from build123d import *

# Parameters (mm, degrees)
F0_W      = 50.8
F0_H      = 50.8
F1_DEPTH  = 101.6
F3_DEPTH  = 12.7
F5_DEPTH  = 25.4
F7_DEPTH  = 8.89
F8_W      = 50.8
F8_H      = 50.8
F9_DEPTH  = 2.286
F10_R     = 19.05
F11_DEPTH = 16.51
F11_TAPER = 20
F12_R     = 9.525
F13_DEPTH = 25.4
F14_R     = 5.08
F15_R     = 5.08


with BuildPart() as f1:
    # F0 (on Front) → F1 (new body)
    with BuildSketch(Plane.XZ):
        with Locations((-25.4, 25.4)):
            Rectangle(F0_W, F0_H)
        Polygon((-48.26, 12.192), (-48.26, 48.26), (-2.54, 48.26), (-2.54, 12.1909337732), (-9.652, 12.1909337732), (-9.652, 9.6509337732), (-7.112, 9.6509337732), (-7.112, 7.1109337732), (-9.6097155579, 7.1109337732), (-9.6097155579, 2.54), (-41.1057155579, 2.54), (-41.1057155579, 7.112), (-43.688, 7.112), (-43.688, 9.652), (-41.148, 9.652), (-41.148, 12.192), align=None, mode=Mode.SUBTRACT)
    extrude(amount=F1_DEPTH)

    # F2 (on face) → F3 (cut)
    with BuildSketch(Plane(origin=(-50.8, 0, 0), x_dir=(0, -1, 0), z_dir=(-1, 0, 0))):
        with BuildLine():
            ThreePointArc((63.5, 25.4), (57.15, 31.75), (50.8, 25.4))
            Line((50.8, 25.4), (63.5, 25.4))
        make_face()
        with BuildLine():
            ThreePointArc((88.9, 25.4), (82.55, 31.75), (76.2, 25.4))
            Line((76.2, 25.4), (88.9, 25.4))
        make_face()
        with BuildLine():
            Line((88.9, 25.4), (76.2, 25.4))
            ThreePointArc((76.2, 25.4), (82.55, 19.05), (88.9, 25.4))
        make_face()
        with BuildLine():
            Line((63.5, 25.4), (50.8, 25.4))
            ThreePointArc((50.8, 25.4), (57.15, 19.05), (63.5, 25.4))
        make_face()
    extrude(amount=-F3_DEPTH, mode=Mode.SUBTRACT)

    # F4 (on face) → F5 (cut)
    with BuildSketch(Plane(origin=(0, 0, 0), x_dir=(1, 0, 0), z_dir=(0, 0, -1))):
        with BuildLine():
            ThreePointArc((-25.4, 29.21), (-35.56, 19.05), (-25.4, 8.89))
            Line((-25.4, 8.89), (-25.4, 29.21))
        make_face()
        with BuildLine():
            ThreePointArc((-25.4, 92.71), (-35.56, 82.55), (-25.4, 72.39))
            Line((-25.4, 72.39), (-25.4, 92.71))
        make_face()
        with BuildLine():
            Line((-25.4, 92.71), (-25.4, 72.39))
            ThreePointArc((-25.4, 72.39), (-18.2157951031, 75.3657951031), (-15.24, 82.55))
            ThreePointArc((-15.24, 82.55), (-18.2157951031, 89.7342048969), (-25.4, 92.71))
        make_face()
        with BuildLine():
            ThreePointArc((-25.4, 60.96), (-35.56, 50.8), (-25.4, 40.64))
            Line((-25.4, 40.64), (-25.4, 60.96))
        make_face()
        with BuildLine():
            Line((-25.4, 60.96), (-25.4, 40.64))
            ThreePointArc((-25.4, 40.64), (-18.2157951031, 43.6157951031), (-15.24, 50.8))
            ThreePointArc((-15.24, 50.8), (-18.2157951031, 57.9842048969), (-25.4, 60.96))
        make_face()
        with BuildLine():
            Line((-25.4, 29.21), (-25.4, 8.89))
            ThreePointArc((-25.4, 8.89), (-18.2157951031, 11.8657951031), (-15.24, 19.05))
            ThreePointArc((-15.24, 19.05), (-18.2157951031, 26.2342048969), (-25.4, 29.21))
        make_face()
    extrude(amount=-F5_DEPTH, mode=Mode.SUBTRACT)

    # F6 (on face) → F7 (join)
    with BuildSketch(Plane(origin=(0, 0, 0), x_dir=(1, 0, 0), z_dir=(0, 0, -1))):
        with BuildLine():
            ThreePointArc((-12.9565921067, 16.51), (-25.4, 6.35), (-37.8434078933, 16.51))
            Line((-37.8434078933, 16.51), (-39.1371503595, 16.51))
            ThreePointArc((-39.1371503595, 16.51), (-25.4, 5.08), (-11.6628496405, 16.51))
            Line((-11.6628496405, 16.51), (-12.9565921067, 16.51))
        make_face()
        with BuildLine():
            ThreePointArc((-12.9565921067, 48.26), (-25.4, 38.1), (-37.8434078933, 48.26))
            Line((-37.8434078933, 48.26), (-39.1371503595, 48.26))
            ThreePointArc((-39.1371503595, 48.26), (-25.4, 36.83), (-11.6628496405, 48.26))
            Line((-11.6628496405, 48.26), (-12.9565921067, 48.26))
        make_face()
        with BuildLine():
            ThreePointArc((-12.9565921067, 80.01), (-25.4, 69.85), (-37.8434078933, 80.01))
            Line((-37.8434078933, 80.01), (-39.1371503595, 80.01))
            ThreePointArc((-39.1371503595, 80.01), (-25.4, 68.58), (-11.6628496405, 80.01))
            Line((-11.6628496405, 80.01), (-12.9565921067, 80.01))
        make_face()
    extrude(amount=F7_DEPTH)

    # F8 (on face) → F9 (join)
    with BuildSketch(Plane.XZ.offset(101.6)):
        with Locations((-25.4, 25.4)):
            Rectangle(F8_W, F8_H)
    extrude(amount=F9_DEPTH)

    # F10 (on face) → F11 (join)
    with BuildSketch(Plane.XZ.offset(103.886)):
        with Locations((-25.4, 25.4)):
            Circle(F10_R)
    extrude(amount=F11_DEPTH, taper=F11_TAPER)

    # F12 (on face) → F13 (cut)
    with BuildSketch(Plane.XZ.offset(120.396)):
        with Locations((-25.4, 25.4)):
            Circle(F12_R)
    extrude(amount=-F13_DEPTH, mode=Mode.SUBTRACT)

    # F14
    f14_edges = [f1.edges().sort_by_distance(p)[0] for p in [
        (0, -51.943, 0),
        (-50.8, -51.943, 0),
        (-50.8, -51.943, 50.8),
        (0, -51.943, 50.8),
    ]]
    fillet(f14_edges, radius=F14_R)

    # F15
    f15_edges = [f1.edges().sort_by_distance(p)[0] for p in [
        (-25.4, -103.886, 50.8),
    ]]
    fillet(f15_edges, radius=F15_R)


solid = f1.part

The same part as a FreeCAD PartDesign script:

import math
import FreeCAD as App
import Part
import Sketcher

V = App.Vector
Q = App.Units.Quantity


def edges_at(feature, points):
    """Names of the edges that pass closest to the given points."""
    edges = feature.Shape.Edges
    near = lambda p: min(range(len(edges)), key=lambda i: edges[i].distToShape(Part.Vertex(*p))[0])
    return sorted({f"Edge{near(p) + 1}" for p in points})

doc = App.newDocument("Part")
params = doc.addObject("Spreadsheet::Sheet", "Params")
for row, (alias, value) in enumerate([
    ("sketch1_width", "2 in"),
    ("sketch1_width2", "1.8 in"),
    ("sketch1_width3", "0.1 in"),
    ("sketch1_width4", "0.28 in"),
    ("sketch1_width5", "1.24 in"),
    ("pad1_length", "4 in"),
    ("sketch2_diameter", "0.5 in"),
    ("pocket1_length", "0.5 in"),
    ("sketch3_radius", "0.4 in"),
    ("pocket2_length", "1 in"),
    ("sketch4_radius", "0.5 in"),
    ("sketch4_radius2", "0.55 in"),
    ("pad2_length", "0.35 in"),
    ("sketch5_width", "2 in"),
    ("pad3_length", "0.09 in"),
    ("sketch6_diameter", "1.5 in"),
    ("pad4_length", "0.65 in"),
    ("pad4_taper", "-20 deg"),
    ("sketch7_diameter", "0.75 in"),
    ("pocket3_length", "1 in"),
    ("fillet_radius", "0.2 in"),
    ("fillet2_radius", "0.2 in"),
], start=1):
    params.set(f"A{row}", alias)
    params.set(f"B{row}", "=" + value)
    params.setAlias(f"B{row}", alias)

body = doc.addObject("PartDesign::Body", "Body")

sketch1 = body.newObject("Sketcher::SketchObject", "Sketch")
sketch1.AttachmentSupport = (doc.getObject("XZ_Plane"), [""])
sketch1.MapMode = "FlatFace"
sketch1.addGeometry([
    Part.LineSegment(V(-50.8, 50.8, 0), V(-50.8, 0, 0)),
    Part.LineSegment(V(-50.8, 0, 0), V(0, 0, 0)),
    Part.LineSegment(V(0, 0, 0), V(0, 50.8, 0)),
    Part.LineSegment(V(0, 50.8, 0), V(-50.8, 50.8, 0)),
    Part.LineSegment(V(-41.148, 12.192, 0), V(-48.26, 12.192, 0)),
    Part.LineSegment(V(-48.26, 12.192, 0), V(-48.26, 48.26, 0)),
    Part.LineSegment(V(-48.26, 48.26, 0), V(-2.54, 48.26, 0)),
    Part.LineSegment(V(-2.54, 48.26, 0), V(-2.54, 12.190934, 0)),
    Part.LineSegment(V(-2.54, 12.190934, 0), V(-9.652, 12.190934, 0)),
    Part.LineSegment(V(-9.652, 12.190934, 0), V(-9.652, 9.650934, 0)),
    Part.LineSegment(V(-9.652, 9.650934, 0), V(-7.112, 9.650934, 0)),
    Part.LineSegment(V(-7.112, 9.650934, 0), V(-7.112, 7.110934, 0)),
    Part.LineSegment(V(-7.112, 7.110934, 0), V(-9.609716, 7.110934, 0)),
    Part.LineSegment(V(-9.609716, 7.110934, 0), V(-9.609716, 2.54, 0)),
    Part.LineSegment(V(-9.609716, 2.54, 0), V(-41.105716, 2.54, 0)),
    Part.LineSegment(V(-41.105716, 2.54, 0), V(-41.105716, 7.112, 0)),
    Part.LineSegment(V(-41.105716, 7.112, 0), V(-43.688, 7.112, 0)),
    Part.LineSegment(V(-43.688, 7.112, 0), V(-43.688, 9.652, 0)),
    Part.LineSegment(V(-43.688, 9.652, 0), V(-41.148, 9.652, 0)),
    Part.LineSegment(V(-41.148, 9.652, 0), V(-41.148, 12.192, 0)),
], False)
sketch1.addConstraint([
    Sketcher.Constraint("Coincident", 0, 2, 1, 1),
    Sketcher.Constraint("Coincident", 1, 2, 2, 1),
    Sketcher.Constraint("Coincident", 2, 2, 3, 1),
    Sketcher.Constraint("Coincident", 3, 2, 0, 1),
    Sketcher.Constraint("Coincident", 4, 2, 5, 1),
    Sketcher.Constraint("Coincident", 5, 2, 6, 1),
    Sketcher.Constraint("Coincident", 6, 2, 7, 1),
    Sketcher.Constraint("Coincident", 7, 2, 8, 1),
    Sketcher.Constraint("Coincident", 8, 2, 9, 1),
    Sketcher.Constraint("Coincident", 9, 2, 10, 1),
    Sketcher.Constraint("Coincident", 10, 2, 11, 1),
    Sketcher.Constraint("Coincident", 11, 2, 12, 1),
    Sketcher.Constraint("Coincident", 12, 2, 13, 1),
    Sketcher.Constraint("Coincident", 13, 2, 14, 1),
    Sketcher.Constraint("Coincident", 14, 2, 15, 1),
    Sketcher.Constraint("Coincident", 15, 2, 16, 1),
    Sketcher.Constraint("Coincident", 16, 2, 17, 1),
    Sketcher.Constraint("Coincident", 17, 2, 18, 1),
    Sketcher.Constraint("Coincident", 18, 2, 19, 1),
    Sketcher.Constraint("Coincident", 19, 2, 4, 1),
    Sketcher.Constraint("Vertical", 0),
    Sketcher.Constraint("Horizontal", 1),
    Sketcher.Constraint("Vertical", 2),
    Sketcher.Constraint("Horizontal", 3),
    Sketcher.Constraint("Horizontal", 4),
    Sketcher.Constraint("Vertical", 5),
    Sketcher.Constraint("Horizontal", 6),
    Sketcher.Constraint("Vertical", 7),
    Sketcher.Constraint("Horizontal", 8),
    Sketcher.Constraint("Vertical", 9),
    Sketcher.Constraint("Horizontal", 10),
    Sketcher.Constraint("Vertical", 11),
    Sketcher.Constraint("Horizontal", 12),
    Sketcher.Constraint("Vertical", 13),
    Sketcher.Constraint("Horizontal", 14),
    Sketcher.Constraint("Vertical", 15),
    Sketcher.Constraint("Horizontal", 16),
    Sketcher.Constraint("Vertical", 17),
    Sketcher.Constraint("Horizontal", 18),
    Sketcher.Constraint("Vertical", 19),
    Sketcher.Constraint("Coincident", 1, 2, -1, 1),
    Sketcher.Constraint("Equal", 4, 8),
    Sketcher.Constraint("Equal", 10, 18),
    Sketcher.Constraint("Equal", 3, 0),
    Sketcher.Constraint("Equal", 18, 9),
    Sketcher.Constraint("Equal", 9, 11),
    Sketcher.Constraint("Equal", 11, 17),
    Sketcher.Constraint("Equal", 17, 19),
    Sketcher.Constraint("DistanceX", 1, 1, 1, 2, Q("2 in")),
    Sketcher.Constraint("DistanceX", 6, 1, 6, 2, Q("1.8 in")),
    Sketcher.Constraint("DistanceX", 10, 1, 10, 2, Q("0.1 in")),
    Sketcher.Constraint("DistanceX", 4, 2, 4, 1, Q("0.28 in")),
    Sketcher.Constraint("DistanceX", 14, 2, 14, 1, Q("1.24 in")),
    Sketcher.Constraint("DistanceY", 5, 1, 5, 2, Q("1.42 in")),
    Sketcher.Constraint("DistanceY", 15, 1, 15, 2, Q("0.18 in")),
    Sketcher.Constraint("DistanceX", 4, 2, -1, 1, Q("1.9 in")),
    Sketcher.Constraint("DistanceY", -1, 1, 5, 2, Q("1.9 in")),
    Sketcher.Constraint("DistanceX", 12, 2, 12, 1, Q("2.497716 mm")),
    Sketcher.Constraint("DistanceY", 7, 2, 7, 1, Q("36.069066 mm")),
])
sketch1.setExpression("Constraints[48]", "Params.sketch1_width")
sketch1.setExpression("Constraints[49]", "Params.sketch1_width2")
sketch1.setExpression("Constraints[50]", "Params.sketch1_width3")
sketch1.setExpression("Constraints[51]", "Params.sketch1_width4")
sketch1.setExpression("Constraints[52]", "Params.sketch1_width5")
pad1 = body.newObject("PartDesign::Pad", "Pad")
pad1.Profile = sketch1
pad1.setExpression("Length", "Params.pad1_length")

sketch2 = body.newObject("Sketcher::SketchObject", "Sketch001")
sketch2.AttachmentSupport = (doc.getObject("YZ_Plane"), [""])
sketch2.MapMode = "FlatFace"
sketch2.AttachmentOffset = App.Placement(V(0, 0, -2 * 25.4), App.Rotation())
sketch2.addGeometry([
    Part.Circle(V(-57.15, 25.4, 0), V(0, 0, 1), 6.35),
    Part.Circle(V(-82.55, 25.4, 0), V(0, 0, 1), 6.35),
], False)
sketch2.addConstraint([
    Sketcher.Constraint("Equal", 0, 1),
    Sketcher.Constraint("Horizontal", 0, 3, 1, 3),
    Sketcher.Constraint("Diameter", 0, Q("0.5 in")),
    Sketcher.Constraint("DistanceY", -1, 1, 0, 3, Q("1 in")),
    Sketcher.Constraint("DistanceX", 1, 3, 0, 3, Q("1 in")),
    Sketcher.Constraint("DistanceX", 0, 3, -1, 1, Q("2.25 in")),
])
sketch2.setExpression("Constraints[2]", "Params.sketch2_diameter")
pocket1 = body.newObject("PartDesign::Pocket", "Pocket")
pocket1.Profile = sketch2
pocket1.setExpression("Length", "Params.pocket1_length")
pocket1.Reversed = True

sketch3 = body.newObject("Sketcher::SketchObject", "Sketch002")
sketch3.AttachmentSupport = (doc.getObject("XY_Plane"), [""])
sketch3.MapMode = "FlatFace"
sketch3.addGeometry([
    Part.ArcOfCircle(Part.Circle(V(-25.4, -19.05, 0), V(0, 0, 1), 10.16), math.radians(90), math.radians(270)),
    Part.ArcOfCircle(Part.Circle(V(-25.4, -19.05, 0), V(0, 0, 1), 10.16), math.radians(0), math.radians(90)),
    Part.ArcOfCircle(Part.Circle(V(-25.4, -19.05, 0), V(0, 0, 1), 10.16), math.radians(-90), math.radians(0)),
    Part.ArcOfCircle(Part.Circle(V(-25.4, -82.55, 0), V(0, 0, 1), 10.16), math.radians(90), math.radians(270)),
    Part.ArcOfCircle(Part.Circle(V(-25.4, -82.55, 0), V(0, 0, 1), 10.16), math.radians(0), math.radians(90)),
    Part.ArcOfCircle(Part.Circle(V(-25.4, -82.55, 0), V(0, 0, 1), 10.16), math.radians(-90), math.radians(0)),
    Part.ArcOfCircle(Part.Circle(V(-25.4, -50.8, 0), V(0, 0, 1), 10.16), math.radians(90), math.radians(270)),
    Part.ArcOfCircle(Part.Circle(V(-25.4, -50.8, 0), V(0, 0, 1), 10.16), math.radians(0), math.radians(90)),
    Part.ArcOfCircle(Part.Circle(V(-25.4, -50.8, 0), V(0, 0, 1), 10.16), math.radians(-90), math.radians(0)),
], False)
sketch3.addConstraint([
    Sketcher.Constraint("Tangent", 0, 1, 1, 2),
    Sketcher.Constraint("Tangent", 1, 1, 2, 2),
    Sketcher.Constraint("Tangent", 2, 1, 0, 2),
    Sketcher.Constraint("Tangent", 3, 1, 4, 2),
    Sketcher.Constraint("Tangent", 4, 1, 5, 2),
    Sketcher.Constraint("Tangent", 5, 1, 3, 2),
    Sketcher.Constraint("Tangent", 6, 1, 7, 2),
    Sketcher.Constraint("Tangent", 7, 1, 8, 2),
    Sketcher.Constraint("Tangent", 8, 1, 6, 2),
    Sketcher.Constraint("Equal", 2, 3),
    Sketcher.Constraint("Equal", 5, 6),
    Sketcher.Constraint("Horizontal", 2, 3, 1, 1),
    Sketcher.Constraint("Horizontal", 5, 3, 4, 1),
    Sketcher.Constraint("Horizontal", 8, 3, 7, 1),
    Sketcher.Constraint("Vertical", 2, 3, 3, 3),
    Sketcher.Constraint("Vertical", 5, 3, 6, 3),
    Sketcher.Constraint("Vertical", 8, 3, 0, 1),
    Sketcher.Constraint("Vertical", 0, 1, 2, 1),
    Sketcher.Constraint("Vertical", 2, 1, 3, 1),
    Sketcher.Constraint("Vertical", 3, 1, 5, 1),
    Sketcher.Constraint("Vertical", 5, 1, 6, 1),
    Sketcher.Constraint("Vertical", 6, 1, 8, 1),
    Sketcher.Constraint("Radius", 0, Q("0.4 in")),
    Sketcher.Constraint("DistanceX", 0, 3, -1, 1, Q("1 in")),
    Sketcher.Constraint("DistanceY", 6, 3, -1, 1, Q("2 in")),
    Sketcher.Constraint("DistanceY", 3, 3, 0, 3, Q("2.5 in")),
    Sketcher.Constraint("DistanceY", 0, 3, -1, 1, Q("0.75 in")),
])
sketch3.setExpression("Constraints[22]", "Params.sketch3_radius")
pocket2 = body.newObject("PartDesign::Pocket", "Pocket001")
pocket2.Profile = sketch3
pocket2.setExpression("Length", "Params.pocket2_length")
pocket2.Reversed = True

sketch4 = body.newObject("Sketcher::SketchObject", "Sketch003")
sketch4.AttachmentSupport = (doc.getObject("XY_Plane"), [""])
sketch4.MapMode = "FlatFace"
sketch4.addGeometry([
    Part.ArcOfCircle(Part.Circle(V(-25.4, -19.05, 0), V(0, 0, 1), 12.7), math.radians(11.536959), math.radians(168.463041)),
    Part.LineSegment(V(-37.843408, -16.51, 0), V(-39.13715, -16.51, 0)),
    Part.ArcOfCircle(Part.Circle(V(-25.4, -19.05, 0), V(0, 0, 1), 13.97), math.radians(10.475682), math.radians(169.524318)),
    Part.LineSegment(V(-11.66285, -16.51, 0), V(-12.956592, -16.51, 0)),
    Part.ArcOfCircle(Part.Circle(V(-25.4, -50.8, 0), V(0, 0, 1), 12.7), math.radians(11.536959), math.radians(168.463041)),
    Part.LineSegment(V(-37.843408, -48.26, 0), V(-39.13715, -48.26, 0)),
    Part.ArcOfCircle(Part.Circle(V(-25.4, -50.8, 0), V(0, 0, 1), 13.97), math.radians(10.475682), math.radians(169.524318)),
    Part.LineSegment(V(-11.66285, -48.26, 0), V(-12.956592, -48.26, 0)),
    Part.ArcOfCircle(Part.Circle(V(-25.4, -82.55, 0), V(0, 0, 1), 12.7), math.radians(11.536959), math.radians(168.463041)),
    Part.LineSegment(V(-37.843408, -80.01, 0), V(-39.13715, -80.01, 0)),
    Part.ArcOfCircle(Part.Circle(V(-25.4, -82.55, 0), V(0, 0, 1), 13.97), math.radians(10.475682), math.radians(169.524318)),
    Part.LineSegment(V(-11.66285, -80.01, 0), V(-12.956592, -80.01, 0)),
], False)
sketch4.addConstraint([
    Sketcher.Constraint("Coincident", 0, 2, 1, 1),
    Sketcher.Constraint("Coincident", 1, 2, 2, 2),
    Sketcher.Constraint("Coincident", 2, 1, 3, 1),
    Sketcher.Constraint("Coincident", 3, 2, 0, 1),
    Sketcher.Constraint("Coincident", 4, 2, 5, 1),
    Sketcher.Constraint("Coincident", 5, 2, 6, 2),
    Sketcher.Constraint("Coincident", 6, 1, 7, 1),
    Sketcher.Constraint("Coincident", 7, 2, 4, 1),
    Sketcher.Constraint("Coincident", 8, 2, 9, 1),
    Sketcher.Constraint("Coincident", 9, 2, 10, 2),
    Sketcher.Constraint("Coincident", 10, 1, 11, 1),
    Sketcher.Constraint("Coincident", 11, 2, 8, 1),
    Sketcher.Constraint("Horizontal", 1),
    Sketcher.Constraint("Horizontal", 3),
    Sketcher.Constraint("Horizontal", 5),
    Sketcher.Constraint("Horizontal", 7),
    Sketcher.Constraint("Horizontal", 9),
    Sketcher.Constraint("Horizontal", 11),
    Sketcher.Constraint("Coincident", 2, 3, 0, 3),
    Sketcher.Constraint("Coincident", 6, 3, 4, 3),
    Sketcher.Constraint("Coincident", 10, 3, 8, 3),
    Sketcher.Constraint("Equal", 0, 4),
    Sketcher.Constraint("Equal", 2, 6),
    Sketcher.Constraint("Equal", 4, 8),
    Sketcher.Constraint("Equal", 6, 10),
    Sketcher.Constraint("Horizontal", 1, 2, 2, 1),
    Sketcher.Constraint("Horizontal", 5, 2, 6, 1),
    Sketcher.Constraint("Horizontal", 9, 2, 10, 1),
    Sketcher.Constraint("Vertical", 2, 3, 4, 3),
    Sketcher.Constraint("Vertical", 6, 3, 8, 3),
    Sketcher.Constraint("Vertical", 0, 2, 4, 2),
    Sketcher.Constraint("Vertical", 4, 2, 8, 2),
    Sketcher.Constraint("Radius", 0, Q("0.5 in")),
    Sketcher.Constraint("Radius", 2, Q("0.55 in")),
    Sketcher.Constraint("DistanceX", 0, 3, -1, 1, Q("1 in")),
    Sketcher.Constraint("DistanceY", 4, 3, -1, 1, Q("2 in")),
    Sketcher.Constraint("DistanceY", 4, 2, -1, 1, Q("1.9 in")),
    Sketcher.Constraint("DistanceY", 8, 3, 0, 3, Q("2.5 in")),
    Sketcher.Constraint("DistanceY", 0, 3, -1, 1, Q("0.75 in")),
])
sketch4.setExpression("Constraints[32]", "Params.sketch4_radius")
sketch4.setExpression("Constraints[33]", "Params.sketch4_radius2")
pad2 = body.newObject("PartDesign::Pad", "Pad001")
pad2.Profile = sketch4
pad2.setExpression("Length", "Params.pad2_length")
pad2.Reversed = True

sketch5 = body.newObject("Sketcher::SketchObject", "Sketch004")
sketch5.AttachmentSupport = (doc.getObject("XZ_Plane"), [""])
sketch5.MapMode = "FlatFace"
sketch5.AttachmentOffset = App.Placement(V(0, 0, 4 * 25.4), App.Rotation())
sketch5.addGeometry([
    Part.LineSegment(V(-50.8, 50.8, 0), V(-50.8, 0, 0)),
    Part.LineSegment(V(-50.8, 0, 0), V(0, 0, 0)),
    Part.LineSegment(V(0, 0, 0), V(0, 50.8, 0)),
    Part.LineSegment(V(0, 50.8, 0), V(-50.8, 50.8, 0)),
], False)
sketch5.addConstraint([
    Sketcher.Constraint("Coincident", 0, 2, 1, 1),
    Sketcher.Constraint("Coincident", 1, 2, 2, 1),
    Sketcher.Constraint("Coincident", 2, 2, 3, 1),
    Sketcher.Constraint("Coincident", 3, 2, 0, 1),
    Sketcher.Constraint("Vertical", 0),
    Sketcher.Constraint("Horizontal", 1),
    Sketcher.Constraint("Vertical", 2),
    Sketcher.Constraint("Horizontal", 3),
    Sketcher.Constraint("Coincident", 1, 2, -1, 1),
    Sketcher.Constraint("Equal", 3, 0),
    Sketcher.Constraint("DistanceX", 1, 1, 1, 2, Q("2 in")),
])
sketch5.setExpression("Constraints[10]", "Params.sketch5_width")
pad3 = body.newObject("PartDesign::Pad", "Pad002")
pad3.Profile = sketch5
pad3.setExpression("Length", "Params.pad3_length")

sketch6 = body.newObject("Sketcher::SketchObject", "Sketch005")
sketch6.AttachmentSupport = (doc.getObject("XZ_Plane"), [""])
sketch6.MapMode = "FlatFace"
sketch6.AttachmentOffset = App.Placement(V(0, 0, 4.09 * 25.4), App.Rotation())
sketch6.addGeometry(Part.Circle(V(-25.4, 25.4, 0), V(0, 0, 1), 19.05), False)
sketch6.addConstraint([
    Sketcher.Constraint("Diameter", 0, Q("1.5 in")),
    Sketcher.Constraint("DistanceX", 0, 3, -1, 1, Q("1 in")),
    Sketcher.Constraint("DistanceY", -1, 1, 0, 3, Q("1 in")),
])
sketch6.setExpression("Constraints[0]", "Params.sketch6_diameter")
pad4 = body.newObject("PartDesign::Pad", "Pad003")
pad4.Profile = sketch6
pad4.setExpression("Length", "Params.pad4_length")
pad4.setExpression("TaperAngle", "Params.pad4_taper")

sketch7 = body.newObject("Sketcher::SketchObject", "Sketch006")
sketch7.AttachmentSupport = (doc.getObject("XZ_Plane"), [""])
sketch7.MapMode = "FlatFace"
sketch7.AttachmentOffset = App.Placement(V(0, 0, 4.74 * 25.4), App.Rotation())
sketch7.addGeometry(Part.Circle(V(-25.4, 25.4, 0), V(0, 0, 1), 9.525), False)
sketch7.addConstraint([
    Sketcher.Constraint("Diameter", 0, Q("0.75 in")),
    Sketcher.Constraint("DistanceX", 0, 3, -1, 1, Q("1 in")),
    Sketcher.Constraint("DistanceY", -1, 1, 0, 3, Q("1 in")),
])
sketch7.setExpression("Constraints[0]", "Params.sketch7_diameter")
pocket3 = body.newObject("PartDesign::Pocket", "Pocket002")
pocket3.Profile = sketch7
pocket3.setExpression("Length", "Params.pocket3_length")
doc.recompute()

fillet = body.newObject("PartDesign::Fillet", "Fillet")
fillet.Base = (pocket3, edges_at(pocket3, [
    (0, -51.943, 0),
    (-50.8, -51.943, 0),
    (-50.8, -51.943, 50.8),
    (0, -51.943, 50.8),
]))
fillet.setExpression("Radius", "Params.fillet_radius")
doc.recompute()

fillet2 = body.newObject("PartDesign::Fillet", "Fillet001")
fillet2.Base = (fillet, edges_at(fillet, [(-25.4, -103.886, 50.8)]))
fillet2.setExpression("Radius", "Params.fillet2_radius")

doc.recompute()
